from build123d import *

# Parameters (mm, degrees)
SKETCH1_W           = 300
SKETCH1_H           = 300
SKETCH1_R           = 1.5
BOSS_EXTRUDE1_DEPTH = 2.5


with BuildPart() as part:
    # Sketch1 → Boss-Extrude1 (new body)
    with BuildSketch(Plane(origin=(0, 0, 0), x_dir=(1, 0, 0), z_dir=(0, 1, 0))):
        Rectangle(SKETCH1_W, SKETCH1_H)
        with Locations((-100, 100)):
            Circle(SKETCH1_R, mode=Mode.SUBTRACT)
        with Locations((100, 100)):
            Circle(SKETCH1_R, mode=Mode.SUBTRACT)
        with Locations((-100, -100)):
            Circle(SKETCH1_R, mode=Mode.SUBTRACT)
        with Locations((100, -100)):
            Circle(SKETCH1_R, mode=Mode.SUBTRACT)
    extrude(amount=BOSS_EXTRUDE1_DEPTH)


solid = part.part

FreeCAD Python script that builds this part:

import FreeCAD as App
import Part
import Sketcher
from FreeCAD import Vector
Q = App.Units.Quantity

doc = App.newDocument("Part")
body = doc.addObject("PartDesign::Body", "Body")

sketch1 = body.newObject("Sketcher::SketchObject", "Sketch")
sketch1.AttachmentSupport = (doc.getObject("XZ_Plane"), [""])
sketch1.MapMode = "FlatFace"
sketch1.addGeometry(Part.LineSegment(Vector(-150, -150, 0), Vector(-150, 150, 0)), False)
sketch1.addGeometry(Part.LineSegment(Vector(-150, 150, 0), Vector(150, 150, 0)), False)
sketch1.addGeometry(Part.LineSegment(Vector(150, 150, 0), Vector(150, -150, 0)), False)
sketch1.addGeometry(Part.LineSegment(Vector(150, -150, 0), Vector(-150, -150, 0)), False)
sketch1.addGeometry(Part.Circle(Vector(-100, 100, 0), Vector(0, 0, 1), 1.5), False)
sketch1.addGeometry(Part.Circle(Vector(100, 100, 0), Vector(0, 0, 1), 1.5), False)
sketch1.addGeometry(Part.Circle(Vector(-100, -100, 0), Vector(0, 0, 1), 1.5), False)
sketch1.addGeometry(Part.Circle(Vector(100, -100, 0), Vector(0, 0, 1), 1.5), False)
sketch1.addConstraint(Sketcher.Constraint("Coincident", 0, 2, 1, 1))
sketch1.addConstraint(Sketcher.Constraint("Coincident", 1, 2, 2, 1))
sketch1.addConstraint(Sketcher.Constraint("Coincident", 2, 2, 3, 1))
sketch1.addConstraint(Sketcher.Constraint("Coincident", 3, 2, 0, 1))
sketch1.addConstraint(Sketcher.Constraint("Vertical", 0))
sketch1.addConstraint(Sketcher.Constraint("Horizontal", 1))
sketch1.addConstraint(Sketcher.Constraint("Vertical", 2))
sketch1.addConstraint(Sketcher.Constraint("Horizontal", 3))
sketch1.addConstraint(Sketcher.Constraint("Equal", 4, 5))
sketch1.addConstraint(Sketcher.Constraint("Equal", 5, 6))
sketch1.addConstraint(Sketcher.Constraint("Equal", 6, 7))
sketch1.addConstraint(Sketcher.Constraint("Symmetric", 5, 3, 6, 3, -1, 1))
sketch1.addConstraint(Sketcher.Constraint("Symmetric", 4, 3, 7, 3, -1, 1))
sketch1.addConstraint(Sketcher.Constraint("Symmetric", 0, 2, 2, 2, -1, 1))
sketch1.addConstraint(Sketcher.Constraint("Symmetric", 4, 3, 5, 3, -2))
sketch1.addConstraint(Sketcher.Constraint("Equal", 3, 0))
sketch1.addConstraint(Sketcher.Constraint("Diameter", 4, Q("3 mm")))
sketch1.addConstraint(Sketcher.Constraint("DistanceX", 1, 1, 1, 2, Q("300 mm")))
sketch1.addConstraint(Sketcher.Constraint("DistanceX", 4, 3, -1, 1, Q("100 mm")))
sketch1.addConstraint(Sketcher.Constraint("DistanceY", -1, 1, 4, 3, Q("100 mm")))
pad1 = body.newObject("PartDesign::Pad", "Pad")
pad1.Profile = sketch1
pad1.Length = 2.5
pad1.Reversed = True

doc.recompute()
